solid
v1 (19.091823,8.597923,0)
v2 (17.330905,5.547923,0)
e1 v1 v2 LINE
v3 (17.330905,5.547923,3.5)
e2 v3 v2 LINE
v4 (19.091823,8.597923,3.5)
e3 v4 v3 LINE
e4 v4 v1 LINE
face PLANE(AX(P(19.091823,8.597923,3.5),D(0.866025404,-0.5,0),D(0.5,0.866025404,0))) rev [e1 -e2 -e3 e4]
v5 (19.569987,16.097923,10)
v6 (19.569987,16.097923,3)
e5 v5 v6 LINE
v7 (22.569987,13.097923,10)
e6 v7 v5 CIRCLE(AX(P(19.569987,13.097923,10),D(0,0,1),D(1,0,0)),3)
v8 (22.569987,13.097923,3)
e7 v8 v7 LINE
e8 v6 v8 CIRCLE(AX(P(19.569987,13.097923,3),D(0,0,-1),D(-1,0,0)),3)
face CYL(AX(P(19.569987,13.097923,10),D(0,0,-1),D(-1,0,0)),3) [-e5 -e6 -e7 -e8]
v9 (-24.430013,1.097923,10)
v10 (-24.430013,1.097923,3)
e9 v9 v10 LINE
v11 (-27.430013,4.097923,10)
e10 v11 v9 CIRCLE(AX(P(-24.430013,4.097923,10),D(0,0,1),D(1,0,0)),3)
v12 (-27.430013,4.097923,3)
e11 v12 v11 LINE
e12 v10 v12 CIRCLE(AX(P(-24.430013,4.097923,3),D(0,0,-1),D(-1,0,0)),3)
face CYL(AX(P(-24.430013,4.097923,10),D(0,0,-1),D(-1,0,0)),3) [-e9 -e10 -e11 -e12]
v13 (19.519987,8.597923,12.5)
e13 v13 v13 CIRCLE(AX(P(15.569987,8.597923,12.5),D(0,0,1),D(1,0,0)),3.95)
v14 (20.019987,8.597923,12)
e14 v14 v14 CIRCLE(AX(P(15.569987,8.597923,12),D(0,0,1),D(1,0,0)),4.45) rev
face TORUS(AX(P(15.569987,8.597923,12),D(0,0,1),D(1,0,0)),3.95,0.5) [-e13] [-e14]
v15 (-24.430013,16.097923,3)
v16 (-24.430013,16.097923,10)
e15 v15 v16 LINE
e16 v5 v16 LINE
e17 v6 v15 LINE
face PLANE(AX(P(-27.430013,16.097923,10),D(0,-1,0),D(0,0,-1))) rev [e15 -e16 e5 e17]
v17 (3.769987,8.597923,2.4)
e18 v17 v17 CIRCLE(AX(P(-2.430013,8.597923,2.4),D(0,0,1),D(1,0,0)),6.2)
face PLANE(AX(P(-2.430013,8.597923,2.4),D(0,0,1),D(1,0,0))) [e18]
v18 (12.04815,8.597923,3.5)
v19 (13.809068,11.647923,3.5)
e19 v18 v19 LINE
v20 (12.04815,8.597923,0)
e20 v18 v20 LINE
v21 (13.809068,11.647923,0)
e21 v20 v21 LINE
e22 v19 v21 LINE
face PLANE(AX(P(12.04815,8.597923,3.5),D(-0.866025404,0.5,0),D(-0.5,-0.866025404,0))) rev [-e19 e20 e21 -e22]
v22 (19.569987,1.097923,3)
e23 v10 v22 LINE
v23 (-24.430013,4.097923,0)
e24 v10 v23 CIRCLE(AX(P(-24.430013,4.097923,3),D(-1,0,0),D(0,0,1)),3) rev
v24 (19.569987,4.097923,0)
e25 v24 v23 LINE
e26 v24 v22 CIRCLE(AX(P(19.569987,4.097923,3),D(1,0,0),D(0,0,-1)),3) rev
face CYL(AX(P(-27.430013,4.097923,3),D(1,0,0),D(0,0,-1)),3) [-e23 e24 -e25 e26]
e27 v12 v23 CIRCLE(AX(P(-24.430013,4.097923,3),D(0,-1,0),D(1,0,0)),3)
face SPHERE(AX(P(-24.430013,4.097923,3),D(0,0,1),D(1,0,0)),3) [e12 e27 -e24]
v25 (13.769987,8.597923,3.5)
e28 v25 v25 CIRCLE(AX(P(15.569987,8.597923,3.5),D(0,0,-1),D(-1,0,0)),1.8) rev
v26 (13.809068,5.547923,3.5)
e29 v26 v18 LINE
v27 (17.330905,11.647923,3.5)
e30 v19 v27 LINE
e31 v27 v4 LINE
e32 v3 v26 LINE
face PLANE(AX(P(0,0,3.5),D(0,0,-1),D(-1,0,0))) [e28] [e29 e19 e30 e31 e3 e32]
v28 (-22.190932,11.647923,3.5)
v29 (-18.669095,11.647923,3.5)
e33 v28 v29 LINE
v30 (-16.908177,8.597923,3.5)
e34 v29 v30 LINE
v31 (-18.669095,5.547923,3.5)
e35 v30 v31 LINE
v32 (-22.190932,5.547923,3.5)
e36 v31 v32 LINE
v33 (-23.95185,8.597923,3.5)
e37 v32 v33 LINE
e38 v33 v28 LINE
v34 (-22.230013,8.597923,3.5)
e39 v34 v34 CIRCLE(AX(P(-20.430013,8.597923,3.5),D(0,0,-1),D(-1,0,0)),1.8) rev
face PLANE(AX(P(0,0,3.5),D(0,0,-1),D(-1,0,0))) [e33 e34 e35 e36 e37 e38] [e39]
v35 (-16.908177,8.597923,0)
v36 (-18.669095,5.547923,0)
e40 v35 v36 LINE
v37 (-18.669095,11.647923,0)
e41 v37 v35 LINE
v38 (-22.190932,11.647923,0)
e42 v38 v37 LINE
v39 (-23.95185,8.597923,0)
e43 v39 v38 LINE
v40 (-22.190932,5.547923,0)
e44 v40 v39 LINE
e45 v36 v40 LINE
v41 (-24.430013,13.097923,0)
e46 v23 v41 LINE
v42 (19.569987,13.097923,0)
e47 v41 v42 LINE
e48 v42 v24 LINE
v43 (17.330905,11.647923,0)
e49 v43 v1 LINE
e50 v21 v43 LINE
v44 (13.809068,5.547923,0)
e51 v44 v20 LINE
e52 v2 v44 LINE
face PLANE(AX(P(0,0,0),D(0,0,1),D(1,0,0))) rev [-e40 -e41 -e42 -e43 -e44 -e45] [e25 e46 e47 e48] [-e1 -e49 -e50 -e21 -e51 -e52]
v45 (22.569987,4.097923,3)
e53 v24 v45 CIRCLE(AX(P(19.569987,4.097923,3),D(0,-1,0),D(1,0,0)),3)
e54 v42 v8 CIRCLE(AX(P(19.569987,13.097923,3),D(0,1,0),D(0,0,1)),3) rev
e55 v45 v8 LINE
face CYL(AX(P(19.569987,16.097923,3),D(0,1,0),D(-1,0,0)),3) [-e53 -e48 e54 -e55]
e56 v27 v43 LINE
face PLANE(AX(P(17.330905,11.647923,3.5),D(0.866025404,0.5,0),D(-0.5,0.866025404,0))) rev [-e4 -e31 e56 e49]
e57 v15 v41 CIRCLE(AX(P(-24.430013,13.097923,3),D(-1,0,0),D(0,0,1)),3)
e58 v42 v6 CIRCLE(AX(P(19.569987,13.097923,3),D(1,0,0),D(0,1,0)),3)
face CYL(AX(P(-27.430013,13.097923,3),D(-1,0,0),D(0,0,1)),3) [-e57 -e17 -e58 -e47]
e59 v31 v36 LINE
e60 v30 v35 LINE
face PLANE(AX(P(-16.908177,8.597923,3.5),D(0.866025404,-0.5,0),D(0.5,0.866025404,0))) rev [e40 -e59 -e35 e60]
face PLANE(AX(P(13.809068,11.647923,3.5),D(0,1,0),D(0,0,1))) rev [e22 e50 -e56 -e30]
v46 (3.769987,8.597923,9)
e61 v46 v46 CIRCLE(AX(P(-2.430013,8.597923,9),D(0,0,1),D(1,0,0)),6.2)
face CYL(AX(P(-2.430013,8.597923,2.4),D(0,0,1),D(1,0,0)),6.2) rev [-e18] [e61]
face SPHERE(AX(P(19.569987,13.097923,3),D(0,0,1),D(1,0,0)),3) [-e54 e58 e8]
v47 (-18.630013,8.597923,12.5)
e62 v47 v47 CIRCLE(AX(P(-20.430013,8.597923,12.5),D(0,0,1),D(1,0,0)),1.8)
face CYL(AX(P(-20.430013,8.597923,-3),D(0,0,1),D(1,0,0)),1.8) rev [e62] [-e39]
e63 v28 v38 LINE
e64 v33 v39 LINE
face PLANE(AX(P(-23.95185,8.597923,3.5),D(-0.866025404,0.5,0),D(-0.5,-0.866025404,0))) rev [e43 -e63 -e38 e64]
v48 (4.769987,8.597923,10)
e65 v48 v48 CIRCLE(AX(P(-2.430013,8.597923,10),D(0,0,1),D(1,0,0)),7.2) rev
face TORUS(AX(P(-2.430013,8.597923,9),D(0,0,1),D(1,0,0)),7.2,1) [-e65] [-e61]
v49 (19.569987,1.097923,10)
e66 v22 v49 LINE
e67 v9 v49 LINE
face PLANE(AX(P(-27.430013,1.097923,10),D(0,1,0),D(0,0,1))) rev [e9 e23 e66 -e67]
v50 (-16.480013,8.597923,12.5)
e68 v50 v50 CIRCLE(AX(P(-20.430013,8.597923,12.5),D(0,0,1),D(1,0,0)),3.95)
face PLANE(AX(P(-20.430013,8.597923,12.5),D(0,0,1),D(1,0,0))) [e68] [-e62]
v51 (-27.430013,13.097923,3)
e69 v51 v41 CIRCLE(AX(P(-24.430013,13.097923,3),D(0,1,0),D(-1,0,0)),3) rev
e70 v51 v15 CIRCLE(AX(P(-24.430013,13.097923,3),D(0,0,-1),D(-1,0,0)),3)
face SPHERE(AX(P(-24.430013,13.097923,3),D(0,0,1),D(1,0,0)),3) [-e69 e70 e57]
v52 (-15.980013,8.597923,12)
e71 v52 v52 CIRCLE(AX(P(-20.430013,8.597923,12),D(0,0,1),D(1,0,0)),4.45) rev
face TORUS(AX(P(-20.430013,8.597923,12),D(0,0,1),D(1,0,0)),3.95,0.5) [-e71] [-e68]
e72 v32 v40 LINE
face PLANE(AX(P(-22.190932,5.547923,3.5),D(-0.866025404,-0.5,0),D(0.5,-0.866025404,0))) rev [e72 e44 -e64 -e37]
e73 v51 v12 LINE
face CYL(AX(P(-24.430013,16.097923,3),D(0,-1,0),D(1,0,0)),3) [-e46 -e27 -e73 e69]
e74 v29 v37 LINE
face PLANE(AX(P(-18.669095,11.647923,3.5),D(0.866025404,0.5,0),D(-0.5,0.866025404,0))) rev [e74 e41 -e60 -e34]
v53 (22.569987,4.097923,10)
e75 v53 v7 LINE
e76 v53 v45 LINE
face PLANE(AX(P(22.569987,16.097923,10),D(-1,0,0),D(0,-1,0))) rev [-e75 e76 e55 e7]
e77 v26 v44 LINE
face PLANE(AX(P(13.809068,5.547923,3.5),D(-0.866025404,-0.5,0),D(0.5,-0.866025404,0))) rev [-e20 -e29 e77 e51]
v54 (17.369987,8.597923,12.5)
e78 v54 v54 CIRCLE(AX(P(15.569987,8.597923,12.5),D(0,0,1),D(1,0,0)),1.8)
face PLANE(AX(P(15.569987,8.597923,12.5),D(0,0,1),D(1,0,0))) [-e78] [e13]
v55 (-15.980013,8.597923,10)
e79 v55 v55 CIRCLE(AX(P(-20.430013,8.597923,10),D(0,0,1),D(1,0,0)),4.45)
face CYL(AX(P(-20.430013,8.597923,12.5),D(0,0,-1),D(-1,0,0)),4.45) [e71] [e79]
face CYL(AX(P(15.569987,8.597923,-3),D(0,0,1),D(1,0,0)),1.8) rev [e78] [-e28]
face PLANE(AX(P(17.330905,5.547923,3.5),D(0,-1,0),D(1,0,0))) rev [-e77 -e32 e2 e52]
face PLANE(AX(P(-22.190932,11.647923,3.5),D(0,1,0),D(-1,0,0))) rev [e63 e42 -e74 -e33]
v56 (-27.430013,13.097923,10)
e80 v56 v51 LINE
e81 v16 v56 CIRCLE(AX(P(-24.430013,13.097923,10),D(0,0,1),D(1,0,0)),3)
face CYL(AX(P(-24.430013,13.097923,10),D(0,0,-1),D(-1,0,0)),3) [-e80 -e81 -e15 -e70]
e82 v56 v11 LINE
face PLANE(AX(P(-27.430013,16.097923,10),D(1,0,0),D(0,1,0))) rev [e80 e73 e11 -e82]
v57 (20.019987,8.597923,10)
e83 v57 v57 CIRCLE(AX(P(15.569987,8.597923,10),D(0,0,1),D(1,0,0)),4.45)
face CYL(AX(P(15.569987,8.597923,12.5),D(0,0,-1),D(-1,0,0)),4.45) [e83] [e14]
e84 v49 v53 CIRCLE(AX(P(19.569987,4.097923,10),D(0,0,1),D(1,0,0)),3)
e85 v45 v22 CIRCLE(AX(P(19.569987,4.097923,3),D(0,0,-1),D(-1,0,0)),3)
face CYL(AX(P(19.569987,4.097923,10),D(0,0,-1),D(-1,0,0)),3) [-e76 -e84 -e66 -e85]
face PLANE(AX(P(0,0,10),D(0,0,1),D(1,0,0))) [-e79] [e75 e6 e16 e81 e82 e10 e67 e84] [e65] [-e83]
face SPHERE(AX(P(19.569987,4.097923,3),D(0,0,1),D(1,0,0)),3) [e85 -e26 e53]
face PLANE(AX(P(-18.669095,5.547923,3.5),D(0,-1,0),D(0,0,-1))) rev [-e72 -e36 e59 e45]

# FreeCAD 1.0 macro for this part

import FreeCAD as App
import Part
import Sketcher
Q = App.Units.Quantity


def edges_at(feature, points):
    """Names of the edges that pass closest to the given points."""
    edges = feature.Shape.Edges
    near = lambda p: min(range(len(edges)), key=lambda i: edges[i].distToShape(Part.Vertex(*p))[0])
    return sorted({f"Edge{near(p) + 1}" for p in points})

doc = App.newDocument("Part")
body = doc.addObject("PartDesign::Body", "Body")

sketch1 = body.newObject("Sketcher::SketchObject", "Sketch")
sketch1.AttachmentSupport = (doc.getObject("XY_Plane"), [""])
sketch1.MapMode = "FlatFace"
sketch1.addGeometry(Part.LineSegment(App.Vector(-27, 16, 0), App.Vector(-27, 1, 0)), False)
sketch1.addGeometry(Part.LineSegment(App.Vector(-27, 1, 0), App.Vector(23, 1, 0)), False)
sketch1.addGeometry(Part.LineSegment(App.Vector(23, 1, 0), App.Vector(23, 16, 0)), False)
sketch1.addGeometry(Part.LineSegment(App.Vector(23, 16, 0), App.Vector(-27, 16, 0)), False)
sketch1.addConstraint(Sketcher.Constraint("Coincident", 0, 2, 1, 1))
sketch1.addConstraint(Sketcher.Constraint("Coincident", 1, 2, 2, 1))
sketch1.addConstraint(Sketcher.Constraint("Coincident", 2, 2, 3, 1))
sketch1.addConstraint(Sketcher.Constraint("Coincident", 3, 2, 0, 1))
sketch1.addConstraint(Sketcher.Constraint("Vertical", 0))
sketch1.addConstraint(Sketcher.Constraint("Horizontal", 1))
sketch1.addConstraint(Sketcher.Constraint("Vertical", 2))
sketch1.addConstraint(Sketcher.Constraint("Horizontal", 3))
sketch1.addConstraint(Sketcher.Constraint("DistanceX", 1, 1, 1, 2, Q("50 mm")))
sketch1.addConstraint(Sketcher.Constraint("DistanceY", 0, 2, 0, 1, Q("15 mm")))
sketch1.addConstraint(Sketcher.Constraint("DistanceX", 0, 2, -1, 1, Q("27.430013 mm")))
sketch1.addConstraint(Sketcher.Constraint("DistanceY", -1, 1, 0, 2, Q("1.097923 mm")))
pad1 = body.newObject("PartDesign::Pad", "Pad")
pad1.Profile = sketch1
pad1.Length = 10

sketch2 = body.newObject("Sketcher::SketchObject", "Sketch001")
sketch2.AttachmentSupport = (doc.getObject("XY_Plane"), [""])
sketch2.MapMode = "FlatFace"
sketch2.AttachmentOffset = App.Placement(App.Vector(0, 0, 10), App.Rotation())
sketch2.addGeometry(Part.Circle(App.Vector(-2.4, 8.6, 0), App.Vector(0, 0, 1), 6.2), False)
sketch2.addGeometry(Part.Circle(App.Vector(-20.4, 8.6, 0), App.Vector(0, 0, 1), 4.5), False)
sketch2.addGeometry(Part.Circle(App.Vector(15.6, 8.6, 0), App.Vector(0, 0, 1), 4.5), False)
sketch2.addConstraint(Sketcher.Constraint("Equal", 1, 2))
sketch2.addConstraint(Sketcher.Constraint("Horizontal", 0, 3, 1, 3))
sketch2.addConstraint(Sketcher.Constraint("Horizontal", 1, 3, 2, 3))
sketch2.addConstraint(Sketcher.Constraint("Diameter", 0, Q("12.4 mm")))
sketch2.addConstraint(Sketcher.Constraint("Diameter", 1, Q("8.9 mm")))
sketch2.addConstraint(Sketcher.Constraint("DistanceX", 1, 3, 0, 3, Q("18 mm")))
sketch2.addConstraint(Sketcher.Constraint("DistanceX", 0, 3, 2, 3, Q("18 mm")))
sketch2.addConstraint(Sketcher.Constraint("DistanceX", 0, 3, -1, 1, Q("2.430013 mm")))
sketch2.addConstraint(Sketcher.Constraint("DistanceY", -1, 1, 0, 3, Q("8.597923 mm")))
pad2 = body.newObject("PartDesign::Pad", "Pad001")
pad2.Profile = sketch2
pad2.Length = 2.5

sketch3 = body.newObject("Sketcher::SketchObject", "Sketch002")
sketch3.AttachmentSupport = (doc.getObject("XY_Plane"), [""])
sketch3.MapMode = "FlatFace"
sketch3.AttachmentOffset = App.Placement(App.Vector(0, 0, 2.4), App.Rotation())
sketch3.addGeometry(Part.Circle(App.Vector(-2, 9, 0), App.Vector(0, 0, 1), 6), False)
sketch3.addConstraint(Sketcher.Constraint("Diameter", 0, Q("12.4 mm")))
sketch3.addConstraint(Sketcher.Constraint("DistanceX", 0, 3, -1, 1, Q("2.430013 mm")))
sketch3.addConstraint(Sketcher.Constraint("DistanceY", -1, 1, 0, 3, Q("8.597923 mm")))
pocket1 = body.newObject("PartDesign::Pocket", "Pocket")
pocket1.Profile = sketch3
pocket1.Length = 10.1
pocket1.Reversed = True

sketch4 = body.newObject("Sketcher::SketchObject", "Sketch003")
sketch4.AttachmentSupport = (doc.getObject("XY_Plane"), [""])
sketch4.MapMode = "FlatFace"
sketch4.AttachmentOffset = App.Placement(App.Vector(0, 0, 12.5), App.Rotation())
sketch4.addGeometry(Part.Circle(App.Vector(-20.4, 8.6, 0), App.Vector(0, 0, 1), 1.8), False)
sketch4.addGeometry(Part.Circle(App.Vector(15.6, 8.6, 0), App.Vector(0, 0, 1), 1.8), False)
sketch4.addConstraint(Sketcher.Constraint("Equal", 0, 1))
sketch4.addConstraint(Sketcher.Constraint("Horizontal", 0, 3, 1, 3))
sketch4.addConstraint(Sketcher.Constraint("Diameter", 0, Q("3.6 mm")))
sketch4.addConstraint(Sketcher.Constraint("DistanceX", 0, 3, 1, 3, Q("36 mm")))
sketch4.addConstraint(Sketcher.Constraint("DistanceX", 0, 3, -1, 1, Q("20.430013 mm")))
sketch4.addConstraint(Sketcher.Constraint("DistanceY", -1, 1, 0, 3, Q("8.597923 mm")))
pocket2 = body.newObject("PartDesign::Pocket", "Pocket001")
pocket2.Profile = sketch4
pocket2.Length = 15.5

sketch5 = body.newObject("Sketcher::SketchObject", "Sketch004")
sketch5.AttachmentSupport = (doc.getObject("XY_Plane"), [""])
sketch5.MapMode = "FlatFace"
sketch5.addGeometry(Part.LineSegment(App.Vector(12, 8.6, 0), App.Vector(13.8, 11.6, 0)), False)
sketch5.addGeometry(Part.LineSegment(App.Vector(13.8, 11.6, 0), App.Vector(17.3, 11.6, 0)), False)
sketch5.addGeometry(Part.LineSegment(App.Vector(17.3, 11.6, 0), App.Vector(19.1, 8.6, 0)), False)
sketch5.addGeometry(Part.LineSegment(App.Vector(19.1, 8.6, 0), App.Vector(17.3, 5.5, 0)), False)
sketch5.addGeometry(Part.LineSegment(App.Vector(17.3, 5.5, 0), App.Vector(13.8, 5.5, 0)), False)
sketch5.addGeometry(Part.LineSegment(App.Vector(13.8, 5.5, 0), App.Vector(12, 8.6, 0)), False)
sketch5.addGeometry(Part.LineSegment(App.Vector(-24, 8.6, 0), App.Vector(-22.2, 11.6, 0)), False)
sketch5.addGeometry(Part.LineSegment(App.Vector(-22.2, 11.6, 0), App.Vector(-18.7, 11.6, 0)), False)
sketch5.addGeometry(Part.LineSegment(App.Vector(-18.7, 11.6, 0), App.Vector(-16.9, 8.6, 0)), False)
sketch5.addGeometry(Part.LineSegment(App.Vector(-16.9, 8.6, 0), App.Vector(-18.7, 5.5, 0)), False)
sketch5.addGeometry(Part.LineSegment(App.Vector(-18.7, 5.5, 0), App.Vector(-22.2, 5.5, 0)), False)
sketch5.addGeometry(Part.LineSegment(App.Vector(-22.2, 5.5, 0), App.Vector(-24, 8.6, 0)), False)
sketch5.addConstraint(Sketcher.Constraint("Coincident", 0, 2, 1, 1))
sketch5.addConstraint(Sketcher.Constraint("Coincident", 1, 2, 2, 1))
sketch5.addConstraint(Sketcher.Constraint("Coincident", 2, 2, 3, 1))
sketch5.addConstraint(Sketcher.Constraint("Coincident", 3, 2, 4, 1))
sketch5.addConstraint(Sketcher.Constraint("Coincident", 4, 2, 5, 1))
sketch5.addConstraint(Sketcher.Constraint("Coincident", 5, 2, 0, 1))
sketch5.addConstraint(Sketcher.Constraint("Coincident", 6, 2, 7, 1))
sketch5.addConstraint(Sketcher.Constraint("Coincident", 7, 2, 8, 1))
sketch5.addConstraint(Sketcher.Constraint("Coincident", 8, 2, 9, 1))
sketch5.addConstraint(Sketcher.Constraint("Coincident", 9, 2, 10, 1))
sketch5.addConstraint(Sketcher.Constraint("Coincident", 10, 2, 11, 1))
sketch5.addConstraint(Sketcher.Constraint("Coincident", 11, 2, 6, 1))
sketch5.addConstraint(Sketcher.Constraint("Horizontal", 1))
sketch5.addConstraint(Sketcher.Constraint("Horizontal", 4))
sketch5.addConstraint(Sketcher.Constraint("Horizontal", 7))
sketch5.addConstraint(Sketcher.Constraint("Horizontal", 10))
sketch5.addConstraint(Sketcher.Constraint("Parallel", 0, 3))
sketch5.addConstraint(Sketcher.Constraint("Parallel", 2, 5))
sketch5.addConstraint(Sketcher.Constraint("Parallel", 3, 6))
sketch5.addConstraint(Sketcher.Constraint("Parallel", 5, 8))
sketch5.addConstraint(Sketcher.Constraint("Parallel", 6, 9))
sketch5.addConstraint(Sketcher.Constraint("Parallel", 8, 11))
sketch5.addConstraint(Sketcher.Constraint("Horizontal", 2, 2, 5, 2))
sketch5.addConstraint(Sketcher.Constraint("Horizontal", 1, 2, 6, 2))
sketch5.addConstraint(Sketcher.Constraint("Horizontal", 5, 2, 8, 2))
sketch5.addConstraint(Sketcher.Constraint("Horizontal", 4, 2, 9, 2))
sketch5.addConstraint(Sketcher.Constraint("Horizontal", 8, 2, 11, 2))
sketch5.addConstraint(Sketcher.Constraint("Vertical", 1, 2, 3, 2))
sketch5.addConstraint(Sketcher.Constraint("Vertical", 0, 2, 4, 2))
sketch5.addConstraint(Sketcher.Constraint("Equal", 4, 7))
sketch5.addConstraint(Sketcher.Constraint("Angle", 0, Q("60 deg")))
sketch5.addConstraint(Sketcher.Constraint("DistanceX", 6, 2, 0, 2, Q("36 mm")))
sketch5.addConstraint(Sketcher.Constraint("DistanceY", 3, 2, 1, 2, Q("6.1 mm")))
sketch5.addConstraint(Sketcher.Constraint("DistanceX", 1, 1, 1, 2, Q("3.521837 mm")))
sketch5.addConstraint(Sketcher.Constraint("DistanceX", -1, 1, 0, 2, Q("13.809068 mm")))
sketch5.addConstraint(Sketcher.Constraint("DistanceY", -1, 1, 0, 2, Q("11.647923 mm")))
pocket3 = body.newObject("PartDesign::Pocket", "Pocket002")
pocket3.Profile = sketch5
pocket3.Length = 3.5
pocket3.Reversed = True
doc.recompute()

fillet = body.newObject("PartDesign::Fillet", "Fillet")
fillet.Base = (pocket3, edges_at(pocket3, [
    (-2.43, 16.098, 0),
    (22.57, 8.598, 0),
    (-2.43, 1.098, 0),
    (-27.43, 8.598, 0),
    (-27.43, 16.098, 5),
    (22.57, 16.098, 5),
    (22.57, 1.098, 5),
    (-27.43, 1.098, 5),
]))
fillet.Radius = 3
doc.recompute()

fillet2 = body.newObject("PartDesign::Fillet", "Fillet001")
fillet2.Base = (fillet, edges_at(fillet, [(-8.63, 8.598, 10)]))
fillet2.Radius = 1
doc.recompute()

fillet3 = body.newObject("PartDesign::Fillet", "Fillet002")
fillet3.Base = (fillet2, edges_at(fillet2, [(-24.88, 8.598, 12.5), (11.12, 8.598, 12.5)]))
fillet3.Radius = 0.5

doc.recompute()
